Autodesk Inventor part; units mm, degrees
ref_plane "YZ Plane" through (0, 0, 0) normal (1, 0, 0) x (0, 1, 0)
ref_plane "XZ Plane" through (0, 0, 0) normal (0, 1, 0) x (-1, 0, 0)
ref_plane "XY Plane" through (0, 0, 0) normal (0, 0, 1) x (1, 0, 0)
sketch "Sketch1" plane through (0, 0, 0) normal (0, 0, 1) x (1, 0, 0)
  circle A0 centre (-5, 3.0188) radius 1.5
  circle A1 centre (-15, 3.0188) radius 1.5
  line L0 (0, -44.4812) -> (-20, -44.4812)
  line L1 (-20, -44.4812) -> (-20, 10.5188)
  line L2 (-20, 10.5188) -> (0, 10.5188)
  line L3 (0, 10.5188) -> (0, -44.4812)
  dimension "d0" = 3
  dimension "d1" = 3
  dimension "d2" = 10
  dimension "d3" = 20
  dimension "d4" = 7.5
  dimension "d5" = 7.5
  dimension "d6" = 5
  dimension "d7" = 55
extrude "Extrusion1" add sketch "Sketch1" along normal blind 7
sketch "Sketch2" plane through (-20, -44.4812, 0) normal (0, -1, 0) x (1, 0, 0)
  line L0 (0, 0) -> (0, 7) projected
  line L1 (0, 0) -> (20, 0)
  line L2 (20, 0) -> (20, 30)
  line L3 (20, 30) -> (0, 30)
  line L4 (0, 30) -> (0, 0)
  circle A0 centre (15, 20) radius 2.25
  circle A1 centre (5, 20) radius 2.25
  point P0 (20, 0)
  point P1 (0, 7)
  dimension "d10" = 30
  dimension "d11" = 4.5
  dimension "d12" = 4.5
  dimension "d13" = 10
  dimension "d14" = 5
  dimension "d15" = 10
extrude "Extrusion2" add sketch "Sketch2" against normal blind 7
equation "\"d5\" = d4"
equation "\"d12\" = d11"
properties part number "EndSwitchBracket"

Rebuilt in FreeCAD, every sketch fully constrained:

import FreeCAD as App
import Part
import Sketcher
from FreeCAD import Vector

doc = App.newDocument("Part")
body = doc.addObject("PartDesign::Body", "Body")

sketch1 = body.newObject("Sketcher::SketchObject", "Sketch")
sketch1.AttachmentSupport = (doc.getObject("XY_Plane"), [""])
sketch1.MapMode = "FlatFace"
sketch1.addGeometry([
    Part.LineSegment(Vector(-20, -44.5, 0), Vector(0, -44.5, 0)),
    Part.LineSegment(Vector(0, -44.5, 0), Vector(0, 10.5, 0)),
    Part.LineSegment(Vector(0, 10.5, 0), Vector(-20, 10.5, 0)),
    Part.LineSegment(Vector(-20, 10.5, 0), Vector(-20, -44.5, 0)),
    Part.Circle(Vector(-15, 3, 0), Vector(0, 0, 1), 1.5),
    Part.Circle(Vector(-5, 3, 0), Vector(0, 0, 1), 1.5),
], False)
sketch1.addConstraint([
    Sketcher.Constraint("Coincident", 0, 2, 1, 1),
    Sketcher.Constraint("Coincident", 1, 2, 2, 1),
    Sketcher.Constraint("Coincident", 2, 2, 3, 1),
    Sketcher.Constraint("Coincident", 3, 2, 0, 1),
    Sketcher.Constraint("Horizontal", 0),
    Sketcher.Constraint("Vertical", 1),
    Sketcher.Constraint("Horizontal", 2),
    Sketcher.Constraint("Vertical", 3),
    Sketcher.Constraint("Equal", 4, 5),
    Sketcher.Constraint("PointOnObject", 0, 2, -2),
    Sketcher.Constraint("Horizontal", 4, 3, 5, 3),
    Sketcher.Constraint("Diameter", 4, 3.0),
    Sketcher.Constraint("DistanceX", 0, 1, 0, 2, 20.0),
    Sketcher.Constraint("DistanceY", 1, 1, 1, 2, 55.0),
    Sketcher.Constraint("DistanceX", 5, 3, -1, 1, 5.0),
    Sketcher.Constraint("DistanceX", 4, 3, 5, 3, 10.0),
    Sketcher.Constraint("DistanceY", 5, 3, 1, 2, 7.5),
    Sketcher.Constraint("DistanceY", -1, 1, 4, 3, 3.0188),
])
pad1 = body.newObject("PartDesign::Pad", "Pad")
pad1.Profile = sketch1
pad1.Length = 7

sketch2 = body.newObject("Sketcher::SketchObject", "Sketch001")
sketch2.AttachmentSupport = (doc.getObject("XZ_Plane"), [""])
sketch2.MapMode = "FlatFace"
sketch2.AttachmentOffset = App.Placement(Vector(0, 0, 44.4812), App.Rotation())
sketch2.addGeometry([
    Part.LineSegment(Vector(-20, 30, 0), Vector(-20, 0, 0)),
    Part.LineSegment(Vector(-20, 0, 0), Vector(0, 0, 0)),
    Part.LineSegment(Vector(0, 0, 0), Vector(0, 30, 0)),
    Part.LineSegment(Vector(0, 30, 0), Vector(-20, 30, 0)),
    Part.Circle(Vector(-15, 20, 0), Vector(0, 0, 1), 2.2),
    Part.Circle(Vector(-5, 20, 0), Vector(0, 0, 1), 2.2),
], False)
sketch2.addConstraint([
    Sketcher.Constraint("Coincident", 0, 2, 1, 1),
    Sketcher.Constraint("Coincident", 1, 2, 2, 1),
    Sketcher.Constraint("Coincident", 2, 2, 3, 1),
    Sketcher.Constraint("Coincident", 3, 2, 0, 1),
    Sketcher.Constraint("Vertical", 0),
    Sketcher.Constraint("Horizontal", 1),
    Sketcher.Constraint("Vertical", 2),
    Sketcher.Constraint("Horizontal", 3),
    Sketcher.Constraint("Coincident", 1, 2, -1, 1),
    Sketcher.Constraint("Equal", 4, 5),
    Sketcher.Constraint("Horizontal", 4, 3, 5, 3),
    Sketcher.Constraint("Diameter", 4, 4.5),
    Sketcher.Constraint("DistanceY", 0, 2, 0, 1, 30.0),
    Sketcher.Constraint("DistanceX", 5, 3, -1, 1, 5.0),
    Sketcher.Constraint("DistanceX", 4, 3, 5, 3, 10.0),
    Sketcher.Constraint("DistanceX", 0, 2, 4, 3, 5.0),
    Sketcher.Constraint("DistanceY", 5, 3, 2, 2, 10.0),
])
pad2 = body.newObject("PartDesign::Pad", "Pad001")
pad2.Profile = sketch2
pad2.Length = 7
pad2.Reversed = True

doc.recompute()
